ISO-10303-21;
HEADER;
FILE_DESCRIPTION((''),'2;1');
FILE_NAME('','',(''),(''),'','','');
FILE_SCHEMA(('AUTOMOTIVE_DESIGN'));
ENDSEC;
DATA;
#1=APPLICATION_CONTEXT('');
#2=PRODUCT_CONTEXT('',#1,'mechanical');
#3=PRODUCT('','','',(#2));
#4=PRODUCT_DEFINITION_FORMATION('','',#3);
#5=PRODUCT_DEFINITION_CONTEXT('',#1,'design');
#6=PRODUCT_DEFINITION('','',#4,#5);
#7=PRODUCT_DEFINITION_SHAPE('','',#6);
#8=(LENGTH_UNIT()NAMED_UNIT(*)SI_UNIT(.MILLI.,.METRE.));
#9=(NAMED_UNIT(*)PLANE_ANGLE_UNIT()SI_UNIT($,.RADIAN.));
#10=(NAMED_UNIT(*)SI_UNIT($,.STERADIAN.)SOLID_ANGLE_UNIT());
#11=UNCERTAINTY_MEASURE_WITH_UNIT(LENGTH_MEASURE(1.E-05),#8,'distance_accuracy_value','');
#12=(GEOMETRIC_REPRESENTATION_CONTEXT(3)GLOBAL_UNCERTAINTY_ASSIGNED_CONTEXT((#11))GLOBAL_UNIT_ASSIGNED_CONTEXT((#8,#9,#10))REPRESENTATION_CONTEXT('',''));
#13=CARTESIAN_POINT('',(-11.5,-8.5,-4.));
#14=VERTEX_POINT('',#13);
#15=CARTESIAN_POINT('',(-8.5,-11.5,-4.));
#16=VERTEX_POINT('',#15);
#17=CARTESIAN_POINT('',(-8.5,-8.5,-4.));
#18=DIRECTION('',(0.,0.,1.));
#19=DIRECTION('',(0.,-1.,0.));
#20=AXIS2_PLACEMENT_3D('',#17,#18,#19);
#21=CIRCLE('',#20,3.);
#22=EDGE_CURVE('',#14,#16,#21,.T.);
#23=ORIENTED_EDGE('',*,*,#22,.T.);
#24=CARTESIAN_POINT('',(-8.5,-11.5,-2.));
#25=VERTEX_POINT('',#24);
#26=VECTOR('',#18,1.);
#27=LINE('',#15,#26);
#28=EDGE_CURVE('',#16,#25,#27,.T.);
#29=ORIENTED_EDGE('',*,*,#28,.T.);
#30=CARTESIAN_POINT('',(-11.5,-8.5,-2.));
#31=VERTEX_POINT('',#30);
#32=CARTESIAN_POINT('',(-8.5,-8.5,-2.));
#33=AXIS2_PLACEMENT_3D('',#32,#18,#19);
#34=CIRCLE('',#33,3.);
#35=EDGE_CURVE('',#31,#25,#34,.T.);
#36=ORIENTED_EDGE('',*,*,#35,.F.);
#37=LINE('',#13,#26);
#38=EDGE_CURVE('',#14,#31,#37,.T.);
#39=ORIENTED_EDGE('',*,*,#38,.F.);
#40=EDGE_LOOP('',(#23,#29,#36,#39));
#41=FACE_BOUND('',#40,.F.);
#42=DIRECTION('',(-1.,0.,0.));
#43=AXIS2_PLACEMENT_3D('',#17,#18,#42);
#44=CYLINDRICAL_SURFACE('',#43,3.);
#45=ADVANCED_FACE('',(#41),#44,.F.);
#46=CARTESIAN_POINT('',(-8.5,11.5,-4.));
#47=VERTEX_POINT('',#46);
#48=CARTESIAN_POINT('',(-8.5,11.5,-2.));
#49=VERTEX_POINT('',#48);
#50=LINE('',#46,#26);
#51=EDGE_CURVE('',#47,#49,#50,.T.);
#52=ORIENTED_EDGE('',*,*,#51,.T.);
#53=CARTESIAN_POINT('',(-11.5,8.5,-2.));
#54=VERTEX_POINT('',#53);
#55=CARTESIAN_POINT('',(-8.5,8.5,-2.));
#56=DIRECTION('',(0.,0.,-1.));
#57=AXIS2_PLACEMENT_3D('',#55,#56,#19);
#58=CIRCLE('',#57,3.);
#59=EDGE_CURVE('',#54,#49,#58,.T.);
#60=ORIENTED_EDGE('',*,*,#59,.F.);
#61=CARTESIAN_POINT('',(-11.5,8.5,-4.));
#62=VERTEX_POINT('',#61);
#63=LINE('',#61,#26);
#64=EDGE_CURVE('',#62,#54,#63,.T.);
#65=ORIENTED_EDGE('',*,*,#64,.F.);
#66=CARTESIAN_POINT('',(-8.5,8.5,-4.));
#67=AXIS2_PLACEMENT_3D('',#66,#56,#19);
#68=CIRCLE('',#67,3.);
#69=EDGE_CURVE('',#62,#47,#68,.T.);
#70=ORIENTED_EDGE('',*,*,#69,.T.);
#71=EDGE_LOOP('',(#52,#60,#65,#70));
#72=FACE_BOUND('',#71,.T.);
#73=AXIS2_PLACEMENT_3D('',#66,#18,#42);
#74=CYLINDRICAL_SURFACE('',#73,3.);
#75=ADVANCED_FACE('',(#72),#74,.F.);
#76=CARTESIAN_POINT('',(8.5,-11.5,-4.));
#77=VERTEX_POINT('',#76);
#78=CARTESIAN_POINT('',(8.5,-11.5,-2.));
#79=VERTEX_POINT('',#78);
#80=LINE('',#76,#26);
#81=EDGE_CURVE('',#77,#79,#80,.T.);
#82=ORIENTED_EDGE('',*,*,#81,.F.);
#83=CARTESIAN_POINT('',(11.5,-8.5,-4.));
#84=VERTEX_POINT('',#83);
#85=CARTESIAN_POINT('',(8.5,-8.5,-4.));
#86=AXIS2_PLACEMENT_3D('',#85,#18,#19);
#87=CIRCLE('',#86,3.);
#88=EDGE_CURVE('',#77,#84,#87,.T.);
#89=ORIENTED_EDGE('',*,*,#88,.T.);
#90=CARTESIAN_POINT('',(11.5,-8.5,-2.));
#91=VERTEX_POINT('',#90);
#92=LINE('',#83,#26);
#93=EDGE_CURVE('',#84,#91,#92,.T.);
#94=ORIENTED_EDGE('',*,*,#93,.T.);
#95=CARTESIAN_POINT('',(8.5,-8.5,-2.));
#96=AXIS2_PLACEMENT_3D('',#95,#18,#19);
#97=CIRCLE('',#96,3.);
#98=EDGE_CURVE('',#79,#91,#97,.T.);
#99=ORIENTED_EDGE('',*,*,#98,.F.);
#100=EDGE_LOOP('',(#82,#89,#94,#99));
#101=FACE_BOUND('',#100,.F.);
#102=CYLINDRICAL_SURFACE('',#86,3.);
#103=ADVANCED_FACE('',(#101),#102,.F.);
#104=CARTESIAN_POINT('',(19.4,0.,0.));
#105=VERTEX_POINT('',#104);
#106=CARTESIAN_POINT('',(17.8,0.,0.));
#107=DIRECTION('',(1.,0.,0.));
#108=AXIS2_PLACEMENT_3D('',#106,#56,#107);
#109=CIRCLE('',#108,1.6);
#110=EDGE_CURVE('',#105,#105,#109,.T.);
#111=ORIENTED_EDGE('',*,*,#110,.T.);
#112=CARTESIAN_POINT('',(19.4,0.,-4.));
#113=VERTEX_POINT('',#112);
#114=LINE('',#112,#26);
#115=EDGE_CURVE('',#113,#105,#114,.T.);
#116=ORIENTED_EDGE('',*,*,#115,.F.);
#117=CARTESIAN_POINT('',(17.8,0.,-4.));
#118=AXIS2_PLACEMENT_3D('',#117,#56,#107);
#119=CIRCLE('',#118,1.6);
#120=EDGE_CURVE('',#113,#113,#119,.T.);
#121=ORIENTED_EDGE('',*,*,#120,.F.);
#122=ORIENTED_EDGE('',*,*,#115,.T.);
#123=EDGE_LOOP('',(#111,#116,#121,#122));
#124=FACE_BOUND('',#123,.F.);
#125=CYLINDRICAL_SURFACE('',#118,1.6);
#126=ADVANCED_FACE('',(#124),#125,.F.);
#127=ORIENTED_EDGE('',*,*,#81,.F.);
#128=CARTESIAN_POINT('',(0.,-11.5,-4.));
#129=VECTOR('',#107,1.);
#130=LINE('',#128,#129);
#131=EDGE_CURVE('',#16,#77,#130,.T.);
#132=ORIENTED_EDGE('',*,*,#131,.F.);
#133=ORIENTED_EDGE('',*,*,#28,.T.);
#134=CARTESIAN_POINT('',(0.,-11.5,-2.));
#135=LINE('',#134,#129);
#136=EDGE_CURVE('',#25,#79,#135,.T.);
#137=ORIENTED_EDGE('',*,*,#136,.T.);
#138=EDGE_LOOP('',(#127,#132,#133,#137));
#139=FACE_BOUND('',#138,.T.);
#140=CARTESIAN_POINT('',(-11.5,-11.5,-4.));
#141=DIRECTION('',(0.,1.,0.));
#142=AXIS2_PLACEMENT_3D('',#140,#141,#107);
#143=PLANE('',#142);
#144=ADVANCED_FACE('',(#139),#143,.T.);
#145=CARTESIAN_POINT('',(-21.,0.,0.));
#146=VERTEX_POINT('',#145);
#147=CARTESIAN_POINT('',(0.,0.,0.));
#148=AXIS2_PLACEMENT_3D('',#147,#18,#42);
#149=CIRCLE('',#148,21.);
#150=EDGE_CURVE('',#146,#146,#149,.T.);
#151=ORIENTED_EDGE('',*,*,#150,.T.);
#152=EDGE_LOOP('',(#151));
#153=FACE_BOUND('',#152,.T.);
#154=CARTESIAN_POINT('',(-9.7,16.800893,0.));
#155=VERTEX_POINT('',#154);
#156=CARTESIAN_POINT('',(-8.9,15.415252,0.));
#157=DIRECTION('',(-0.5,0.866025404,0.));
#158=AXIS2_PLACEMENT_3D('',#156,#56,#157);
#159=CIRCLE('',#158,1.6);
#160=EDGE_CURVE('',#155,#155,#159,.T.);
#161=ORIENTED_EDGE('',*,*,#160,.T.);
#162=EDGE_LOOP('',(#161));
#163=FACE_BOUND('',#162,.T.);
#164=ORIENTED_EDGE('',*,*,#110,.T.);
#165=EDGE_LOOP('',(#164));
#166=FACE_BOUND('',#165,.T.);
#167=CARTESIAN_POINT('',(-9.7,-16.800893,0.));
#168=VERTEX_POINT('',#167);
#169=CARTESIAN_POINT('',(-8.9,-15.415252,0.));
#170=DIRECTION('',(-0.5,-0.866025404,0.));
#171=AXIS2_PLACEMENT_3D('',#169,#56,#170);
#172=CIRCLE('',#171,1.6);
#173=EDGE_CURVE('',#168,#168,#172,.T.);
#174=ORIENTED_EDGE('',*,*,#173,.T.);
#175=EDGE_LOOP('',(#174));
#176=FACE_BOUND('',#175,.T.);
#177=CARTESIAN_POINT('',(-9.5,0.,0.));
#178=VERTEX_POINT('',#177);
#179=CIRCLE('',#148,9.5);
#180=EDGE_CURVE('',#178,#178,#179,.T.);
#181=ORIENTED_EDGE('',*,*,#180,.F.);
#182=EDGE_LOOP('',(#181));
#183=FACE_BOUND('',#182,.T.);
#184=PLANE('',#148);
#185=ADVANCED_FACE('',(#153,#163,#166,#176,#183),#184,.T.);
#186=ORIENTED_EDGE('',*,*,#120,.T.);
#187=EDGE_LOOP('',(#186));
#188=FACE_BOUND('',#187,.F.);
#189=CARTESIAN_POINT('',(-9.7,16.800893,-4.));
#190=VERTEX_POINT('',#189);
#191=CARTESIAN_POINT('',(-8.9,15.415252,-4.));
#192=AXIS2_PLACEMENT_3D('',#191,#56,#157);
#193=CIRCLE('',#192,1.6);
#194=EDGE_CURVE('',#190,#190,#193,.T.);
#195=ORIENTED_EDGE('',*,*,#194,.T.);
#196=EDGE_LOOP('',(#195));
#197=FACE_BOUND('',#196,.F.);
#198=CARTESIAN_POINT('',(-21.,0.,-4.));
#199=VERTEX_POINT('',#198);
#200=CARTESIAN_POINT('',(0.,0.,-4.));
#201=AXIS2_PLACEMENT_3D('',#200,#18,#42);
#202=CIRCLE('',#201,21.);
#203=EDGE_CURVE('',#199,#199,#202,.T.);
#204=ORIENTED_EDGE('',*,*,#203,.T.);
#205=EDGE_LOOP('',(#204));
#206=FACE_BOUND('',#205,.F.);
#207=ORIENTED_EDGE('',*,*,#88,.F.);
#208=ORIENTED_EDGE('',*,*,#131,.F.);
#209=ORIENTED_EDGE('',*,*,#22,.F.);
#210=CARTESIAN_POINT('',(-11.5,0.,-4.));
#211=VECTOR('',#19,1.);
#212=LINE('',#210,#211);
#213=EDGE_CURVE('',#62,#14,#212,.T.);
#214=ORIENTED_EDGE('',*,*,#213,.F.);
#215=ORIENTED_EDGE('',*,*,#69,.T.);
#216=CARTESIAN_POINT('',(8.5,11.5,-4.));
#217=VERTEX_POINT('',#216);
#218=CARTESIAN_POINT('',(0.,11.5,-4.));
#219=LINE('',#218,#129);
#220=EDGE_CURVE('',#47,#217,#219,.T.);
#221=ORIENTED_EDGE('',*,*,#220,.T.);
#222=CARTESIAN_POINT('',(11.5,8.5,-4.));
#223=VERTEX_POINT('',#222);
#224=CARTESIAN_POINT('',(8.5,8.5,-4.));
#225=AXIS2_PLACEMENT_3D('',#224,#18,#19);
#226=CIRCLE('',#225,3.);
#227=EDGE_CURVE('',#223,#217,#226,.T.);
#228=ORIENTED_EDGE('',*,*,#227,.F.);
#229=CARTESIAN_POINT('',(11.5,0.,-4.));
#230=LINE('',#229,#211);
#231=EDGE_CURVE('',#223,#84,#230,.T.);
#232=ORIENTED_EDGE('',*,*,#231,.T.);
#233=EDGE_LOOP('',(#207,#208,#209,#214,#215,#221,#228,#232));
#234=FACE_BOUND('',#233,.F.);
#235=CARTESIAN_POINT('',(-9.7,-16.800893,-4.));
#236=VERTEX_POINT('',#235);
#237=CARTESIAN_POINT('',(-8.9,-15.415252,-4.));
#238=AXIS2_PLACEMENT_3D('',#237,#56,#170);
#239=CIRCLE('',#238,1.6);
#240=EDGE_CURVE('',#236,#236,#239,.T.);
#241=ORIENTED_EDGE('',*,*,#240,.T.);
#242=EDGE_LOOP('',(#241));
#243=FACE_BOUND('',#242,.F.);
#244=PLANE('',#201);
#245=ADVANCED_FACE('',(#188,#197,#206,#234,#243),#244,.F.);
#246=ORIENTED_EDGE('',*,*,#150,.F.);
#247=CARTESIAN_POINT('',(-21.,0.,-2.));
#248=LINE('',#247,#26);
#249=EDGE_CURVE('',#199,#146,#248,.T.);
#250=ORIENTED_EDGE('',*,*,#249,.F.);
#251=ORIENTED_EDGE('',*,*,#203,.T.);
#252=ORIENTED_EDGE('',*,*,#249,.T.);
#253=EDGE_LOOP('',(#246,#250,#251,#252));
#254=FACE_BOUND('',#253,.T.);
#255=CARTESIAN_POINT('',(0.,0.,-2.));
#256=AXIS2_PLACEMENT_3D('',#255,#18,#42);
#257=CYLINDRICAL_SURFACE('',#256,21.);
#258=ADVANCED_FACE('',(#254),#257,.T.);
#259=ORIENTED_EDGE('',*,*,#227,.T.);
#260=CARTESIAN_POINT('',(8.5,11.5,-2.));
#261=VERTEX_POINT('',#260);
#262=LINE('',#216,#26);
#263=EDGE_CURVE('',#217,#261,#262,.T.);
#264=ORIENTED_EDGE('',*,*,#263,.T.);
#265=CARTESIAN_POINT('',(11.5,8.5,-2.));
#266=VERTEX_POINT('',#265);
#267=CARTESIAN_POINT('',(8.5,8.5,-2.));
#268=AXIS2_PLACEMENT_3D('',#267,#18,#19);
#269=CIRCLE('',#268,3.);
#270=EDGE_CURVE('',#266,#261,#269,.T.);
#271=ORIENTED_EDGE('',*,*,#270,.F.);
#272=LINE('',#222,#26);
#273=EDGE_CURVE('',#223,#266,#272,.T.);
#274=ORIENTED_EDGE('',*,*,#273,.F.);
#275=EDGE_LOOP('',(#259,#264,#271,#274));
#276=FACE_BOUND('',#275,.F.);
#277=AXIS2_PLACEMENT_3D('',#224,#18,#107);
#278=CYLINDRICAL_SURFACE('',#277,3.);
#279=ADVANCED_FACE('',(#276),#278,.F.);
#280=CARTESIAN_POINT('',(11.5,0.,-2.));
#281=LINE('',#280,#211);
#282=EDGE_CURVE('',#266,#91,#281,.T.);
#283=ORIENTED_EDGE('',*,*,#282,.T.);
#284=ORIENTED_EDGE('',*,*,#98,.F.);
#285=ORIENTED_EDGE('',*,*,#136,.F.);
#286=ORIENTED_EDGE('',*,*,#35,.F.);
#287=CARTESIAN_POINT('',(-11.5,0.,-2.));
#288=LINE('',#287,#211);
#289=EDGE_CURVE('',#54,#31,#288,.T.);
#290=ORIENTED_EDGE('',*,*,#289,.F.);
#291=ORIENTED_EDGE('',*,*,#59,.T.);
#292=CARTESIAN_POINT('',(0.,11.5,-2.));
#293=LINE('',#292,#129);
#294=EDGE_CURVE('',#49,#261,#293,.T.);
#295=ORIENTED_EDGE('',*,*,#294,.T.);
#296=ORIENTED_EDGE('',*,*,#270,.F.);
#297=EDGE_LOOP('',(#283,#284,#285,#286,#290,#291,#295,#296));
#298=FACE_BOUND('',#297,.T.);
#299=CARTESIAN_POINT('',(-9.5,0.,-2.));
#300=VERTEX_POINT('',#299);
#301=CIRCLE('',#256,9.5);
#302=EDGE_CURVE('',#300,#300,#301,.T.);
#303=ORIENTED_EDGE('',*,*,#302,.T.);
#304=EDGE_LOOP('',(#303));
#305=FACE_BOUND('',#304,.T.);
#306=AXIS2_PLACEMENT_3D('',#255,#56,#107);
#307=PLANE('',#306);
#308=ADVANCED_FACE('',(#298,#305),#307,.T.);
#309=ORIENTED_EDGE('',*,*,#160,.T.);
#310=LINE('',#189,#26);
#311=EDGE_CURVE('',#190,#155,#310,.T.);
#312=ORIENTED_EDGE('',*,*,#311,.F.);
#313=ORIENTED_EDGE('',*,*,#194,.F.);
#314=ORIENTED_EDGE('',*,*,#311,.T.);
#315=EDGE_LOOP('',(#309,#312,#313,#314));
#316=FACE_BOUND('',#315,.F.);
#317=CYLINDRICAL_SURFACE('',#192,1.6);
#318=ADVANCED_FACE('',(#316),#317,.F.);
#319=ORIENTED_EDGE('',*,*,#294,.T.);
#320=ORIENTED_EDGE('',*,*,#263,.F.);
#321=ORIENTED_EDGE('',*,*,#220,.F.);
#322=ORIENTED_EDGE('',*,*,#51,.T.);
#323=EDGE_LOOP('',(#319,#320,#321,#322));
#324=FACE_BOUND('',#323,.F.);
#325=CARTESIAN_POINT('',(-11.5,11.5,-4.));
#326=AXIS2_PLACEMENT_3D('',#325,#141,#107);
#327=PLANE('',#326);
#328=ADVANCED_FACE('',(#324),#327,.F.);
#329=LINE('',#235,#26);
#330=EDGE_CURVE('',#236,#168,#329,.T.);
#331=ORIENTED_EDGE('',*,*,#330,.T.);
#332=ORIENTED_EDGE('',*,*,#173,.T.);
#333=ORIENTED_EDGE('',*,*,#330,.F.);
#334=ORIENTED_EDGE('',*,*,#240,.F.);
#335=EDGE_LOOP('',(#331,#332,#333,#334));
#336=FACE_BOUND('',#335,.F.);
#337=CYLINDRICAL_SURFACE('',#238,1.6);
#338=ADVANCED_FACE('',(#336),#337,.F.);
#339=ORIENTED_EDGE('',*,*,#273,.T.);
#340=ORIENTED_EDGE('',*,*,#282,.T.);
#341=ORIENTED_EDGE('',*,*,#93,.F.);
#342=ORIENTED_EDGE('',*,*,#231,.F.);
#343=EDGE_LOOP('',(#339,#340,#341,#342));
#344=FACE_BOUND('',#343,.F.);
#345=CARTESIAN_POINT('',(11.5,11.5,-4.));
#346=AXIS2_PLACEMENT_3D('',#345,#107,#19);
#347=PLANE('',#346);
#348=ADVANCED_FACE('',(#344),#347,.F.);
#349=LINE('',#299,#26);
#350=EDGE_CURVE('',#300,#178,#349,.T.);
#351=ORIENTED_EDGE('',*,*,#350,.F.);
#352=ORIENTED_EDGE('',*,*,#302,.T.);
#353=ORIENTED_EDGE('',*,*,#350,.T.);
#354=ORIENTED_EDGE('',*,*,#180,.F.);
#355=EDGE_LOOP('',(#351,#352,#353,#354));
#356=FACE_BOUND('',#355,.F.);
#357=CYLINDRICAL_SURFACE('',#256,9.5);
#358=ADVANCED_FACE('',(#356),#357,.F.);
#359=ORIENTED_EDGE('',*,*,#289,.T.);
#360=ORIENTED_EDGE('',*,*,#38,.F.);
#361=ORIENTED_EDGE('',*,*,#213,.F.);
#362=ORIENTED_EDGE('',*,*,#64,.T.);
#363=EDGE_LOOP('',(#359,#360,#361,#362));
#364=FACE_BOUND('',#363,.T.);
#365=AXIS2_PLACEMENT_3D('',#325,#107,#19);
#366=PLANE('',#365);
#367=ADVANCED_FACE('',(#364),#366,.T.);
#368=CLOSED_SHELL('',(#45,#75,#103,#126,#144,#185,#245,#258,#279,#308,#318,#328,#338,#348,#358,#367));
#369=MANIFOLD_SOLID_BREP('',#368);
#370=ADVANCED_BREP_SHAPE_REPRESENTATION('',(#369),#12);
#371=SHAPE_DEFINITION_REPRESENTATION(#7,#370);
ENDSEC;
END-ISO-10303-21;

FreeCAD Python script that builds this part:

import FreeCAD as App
import Part
import Sketcher


def edges_at(feature, points):
    """Names of the edges that pass closest to the given points."""
    edges = feature.Shape.Edges
    near = lambda p: min(range(len(edges)), key=lambda i: edges[i].distToShape(Part.Vertex(*p))[0])
    return sorted({f"Edge{near(p) + 1}" for p in points})

doc = App.newDocument("Part")
params = doc.addObject("Spreadsheet::Sheet", "Params")
for row, (alias, value) in enumerate([
    ("sketch1_height", "4 mm"),
    ("sketch1_width", "11.5 mm"),
    ("revolution_angle", "360 deg"),
    ("sketch2_width", "23 mm"),
    ("pocket1_length", "2 mm"),
    ("fillet_radius", "3 mm"),
    ("sketch3_diameter", "3.2 mm"),
], start=1):
    params.set(f"A{row}", alias)
    params.set(f"B{row}", "=" + value)
    params.setAlias(f"B{row}", alias)

body = doc.addObject("PartDesign::Body", "Body")

sketch1 = doc.addObject("Sketcher::SketchObject", "Sketch")
body.addObject(sketch1)
sketch1.AttachmentSupport = (doc.XZ_Plane, [""])
sketch1.MapMode = "FlatFace"
sketch1.addGeometry([
    Part.LineSegment(App.Vector(-21, 0, 0), App.Vector(-21, -4, 0)),
    Part.LineSegment(App.Vector(-21, -4, 0), App.Vector(-9.5, -4, 0)),
    Part.LineSegment(App.Vector(-9.5, -4, 0), App.Vector(-9.5, 0, 0)),
    Part.LineSegment(App.Vector(-9.5, 0, 0), App.Vector(-21, 0, 0)),
], False)
sketch1.addConstraint([
    Sketcher.Constraint("Coincident", 0, 2, 1, 1),
    Sketcher.Constraint("Coincident", 1, 2, 2, 1),
    Sketcher.Constraint("Coincident", 2, 2, 3, 1),
    Sketcher.Constraint("Coincident", 3, 2, 0, 1),
    Sketcher.Constraint("Vertical", 0),
    Sketcher.Constraint("Horizontal", 1),
    Sketcher.Constraint("Vertical", 2),
    Sketcher.Constraint("Horizontal", 3),
    Sketcher.Constraint("PointOnObject", 2, 2, -1),
    Sketcher.Constraint("DistanceY", 0, 2, 0, 1, 4.0),
    Sketcher.Constraint("DistanceX", 1, 1, 1, 2, 11.5),
    Sketcher.Constraint("DistanceX", 0, 2, -1, 1, 21.0),
])
sketch1.setExpression("Constraints[9]", "Params.sketch1_height")
sketch1.setExpression("Constraints[10]", "Params.sketch1_width")
revolution = doc.addObject("PartDesign::Revolution", "Revolution")
body.addObject(revolution)
revolution.Profile = sketch1
revolution.ReferenceAxis = (sketch1, ["V_Axis"])
revolution.setExpression("Angle", "Params.revolution_angle")

sketch2 = doc.addObject("Sketcher::SketchObject", "Sketch001")
body.addObject(sketch2)
sketch2.AttachmentSupport = (doc.XY_Plane, [""])
sketch2.MapMode = "FlatFace"
sketch2.AttachmentOffset = App.Placement(App.Vector(0, 0, -4), App.Rotation())
sketch2.addGeometry([
    Part.LineSegment(App.Vector(-12, -12, 0), App.Vector(-12, 12, 0)),
    Part.LineSegment(App.Vector(-12, 12, 0), App.Vector(12, 12, 0)),
    Part.LineSegment(App.Vector(12, 12, 0), App.Vector(12, -12, 0)),
    Part.LineSegment(App.Vector(12, -12, 0), App.Vector(-12, -12, 0)),
], False)
sketch2.addConstraint([
    Sketcher.Constraint("Coincident", 0, 2, 1, 1),
    Sketcher.Constraint("Coincident", 1, 2, 2, 1),
    Sketcher.Constraint("Coincident", 2, 2, 3, 1),
    Sketcher.Constraint("Coincident", 3, 2, 0, 1),
    Sketcher.Constraint("Vertical", 0),
    Sketcher.Constraint("Horizontal", 1),
    Sketcher.Constraint("Vertical", 2),
    Sketcher.Constraint("Horizontal", 3),
    Sketcher.Constraint("Symmetric", 0, 2, 2, 2, -1, 1),
    Sketcher.Constraint("Equal", 3, 0),
    Sketcher.Constraint("DistanceX", 1, 1, 1, 2, 23.0),
])
sketch2.setExpression("Constraints[10]", "Params.sketch2_width")
pocket1 = doc.addObject("PartDesign::Pocket", "Pocket")
body.addObject(pocket1)
pocket1.Profile = sketch2
pocket1.setExpression("Length", "Params.pocket1_length")
pocket1.Reversed = True
doc.recompute()

fillet = doc.addObject("PartDesign::Fillet", "Fillet")
body.addObject(fillet)
fillet.Base = (pocket1, edges_at(pocket1, [
    (-11.5, 11.5, -3),
    (11.5, 11.5, -3),
    (11.5, -11.5, -3),
    (-11.5, -11.5, -3),
]))
fillet.setExpression("Radius", "Params.fillet_radius")

sketch3 = doc.addObject("Sketcher::SketchObject", "Sketch002")
body.addObject(sketch3)
sketch3.AttachmentSupport = (doc.XY_Plane, [""])
sketch3.MapMode = "FlatFace"
sketch3.AttachmentOffset = App.Placement(App.Vector(0, 0, -4), App.Rotation())
sketch3.addGeometry(Part.Circle(App.Vector(17.8, 0, 0), App.Vector(0, 0, 1), 1.6), False)
sketch3.addConstraint([
    Sketcher.Constraint("PointOnObject", 0, 3, -1),
    Sketcher.Constraint("Diameter", 0, 3.2),
    Sketcher.Constraint("DistanceX", -1, 1, 0, 3, 17.8),
])
sketch3.setExpression("Constraints[1]", "Params.sketch3_diameter")
pocket2 = doc.addObject("PartDesign::Pocket", "Pocket001")
body.addObject(pocket2)
pocket2.Profile = sketch3
pocket2.Type = "ThroughAll"
pocket2.Reversed = True
doc.recompute()

polarpattern = doc.addObject("PartDesign::PolarPattern", "PolarPattern")
body.addObject(polarpattern)
polarpattern.Originals = [pocket2]
polarpattern.Axis = (doc.Z_Axis, [""])
polarpattern.Angle = 360
polarpattern.Occurrences = 3
body.Tip = polarpattern

doc.recompute()
